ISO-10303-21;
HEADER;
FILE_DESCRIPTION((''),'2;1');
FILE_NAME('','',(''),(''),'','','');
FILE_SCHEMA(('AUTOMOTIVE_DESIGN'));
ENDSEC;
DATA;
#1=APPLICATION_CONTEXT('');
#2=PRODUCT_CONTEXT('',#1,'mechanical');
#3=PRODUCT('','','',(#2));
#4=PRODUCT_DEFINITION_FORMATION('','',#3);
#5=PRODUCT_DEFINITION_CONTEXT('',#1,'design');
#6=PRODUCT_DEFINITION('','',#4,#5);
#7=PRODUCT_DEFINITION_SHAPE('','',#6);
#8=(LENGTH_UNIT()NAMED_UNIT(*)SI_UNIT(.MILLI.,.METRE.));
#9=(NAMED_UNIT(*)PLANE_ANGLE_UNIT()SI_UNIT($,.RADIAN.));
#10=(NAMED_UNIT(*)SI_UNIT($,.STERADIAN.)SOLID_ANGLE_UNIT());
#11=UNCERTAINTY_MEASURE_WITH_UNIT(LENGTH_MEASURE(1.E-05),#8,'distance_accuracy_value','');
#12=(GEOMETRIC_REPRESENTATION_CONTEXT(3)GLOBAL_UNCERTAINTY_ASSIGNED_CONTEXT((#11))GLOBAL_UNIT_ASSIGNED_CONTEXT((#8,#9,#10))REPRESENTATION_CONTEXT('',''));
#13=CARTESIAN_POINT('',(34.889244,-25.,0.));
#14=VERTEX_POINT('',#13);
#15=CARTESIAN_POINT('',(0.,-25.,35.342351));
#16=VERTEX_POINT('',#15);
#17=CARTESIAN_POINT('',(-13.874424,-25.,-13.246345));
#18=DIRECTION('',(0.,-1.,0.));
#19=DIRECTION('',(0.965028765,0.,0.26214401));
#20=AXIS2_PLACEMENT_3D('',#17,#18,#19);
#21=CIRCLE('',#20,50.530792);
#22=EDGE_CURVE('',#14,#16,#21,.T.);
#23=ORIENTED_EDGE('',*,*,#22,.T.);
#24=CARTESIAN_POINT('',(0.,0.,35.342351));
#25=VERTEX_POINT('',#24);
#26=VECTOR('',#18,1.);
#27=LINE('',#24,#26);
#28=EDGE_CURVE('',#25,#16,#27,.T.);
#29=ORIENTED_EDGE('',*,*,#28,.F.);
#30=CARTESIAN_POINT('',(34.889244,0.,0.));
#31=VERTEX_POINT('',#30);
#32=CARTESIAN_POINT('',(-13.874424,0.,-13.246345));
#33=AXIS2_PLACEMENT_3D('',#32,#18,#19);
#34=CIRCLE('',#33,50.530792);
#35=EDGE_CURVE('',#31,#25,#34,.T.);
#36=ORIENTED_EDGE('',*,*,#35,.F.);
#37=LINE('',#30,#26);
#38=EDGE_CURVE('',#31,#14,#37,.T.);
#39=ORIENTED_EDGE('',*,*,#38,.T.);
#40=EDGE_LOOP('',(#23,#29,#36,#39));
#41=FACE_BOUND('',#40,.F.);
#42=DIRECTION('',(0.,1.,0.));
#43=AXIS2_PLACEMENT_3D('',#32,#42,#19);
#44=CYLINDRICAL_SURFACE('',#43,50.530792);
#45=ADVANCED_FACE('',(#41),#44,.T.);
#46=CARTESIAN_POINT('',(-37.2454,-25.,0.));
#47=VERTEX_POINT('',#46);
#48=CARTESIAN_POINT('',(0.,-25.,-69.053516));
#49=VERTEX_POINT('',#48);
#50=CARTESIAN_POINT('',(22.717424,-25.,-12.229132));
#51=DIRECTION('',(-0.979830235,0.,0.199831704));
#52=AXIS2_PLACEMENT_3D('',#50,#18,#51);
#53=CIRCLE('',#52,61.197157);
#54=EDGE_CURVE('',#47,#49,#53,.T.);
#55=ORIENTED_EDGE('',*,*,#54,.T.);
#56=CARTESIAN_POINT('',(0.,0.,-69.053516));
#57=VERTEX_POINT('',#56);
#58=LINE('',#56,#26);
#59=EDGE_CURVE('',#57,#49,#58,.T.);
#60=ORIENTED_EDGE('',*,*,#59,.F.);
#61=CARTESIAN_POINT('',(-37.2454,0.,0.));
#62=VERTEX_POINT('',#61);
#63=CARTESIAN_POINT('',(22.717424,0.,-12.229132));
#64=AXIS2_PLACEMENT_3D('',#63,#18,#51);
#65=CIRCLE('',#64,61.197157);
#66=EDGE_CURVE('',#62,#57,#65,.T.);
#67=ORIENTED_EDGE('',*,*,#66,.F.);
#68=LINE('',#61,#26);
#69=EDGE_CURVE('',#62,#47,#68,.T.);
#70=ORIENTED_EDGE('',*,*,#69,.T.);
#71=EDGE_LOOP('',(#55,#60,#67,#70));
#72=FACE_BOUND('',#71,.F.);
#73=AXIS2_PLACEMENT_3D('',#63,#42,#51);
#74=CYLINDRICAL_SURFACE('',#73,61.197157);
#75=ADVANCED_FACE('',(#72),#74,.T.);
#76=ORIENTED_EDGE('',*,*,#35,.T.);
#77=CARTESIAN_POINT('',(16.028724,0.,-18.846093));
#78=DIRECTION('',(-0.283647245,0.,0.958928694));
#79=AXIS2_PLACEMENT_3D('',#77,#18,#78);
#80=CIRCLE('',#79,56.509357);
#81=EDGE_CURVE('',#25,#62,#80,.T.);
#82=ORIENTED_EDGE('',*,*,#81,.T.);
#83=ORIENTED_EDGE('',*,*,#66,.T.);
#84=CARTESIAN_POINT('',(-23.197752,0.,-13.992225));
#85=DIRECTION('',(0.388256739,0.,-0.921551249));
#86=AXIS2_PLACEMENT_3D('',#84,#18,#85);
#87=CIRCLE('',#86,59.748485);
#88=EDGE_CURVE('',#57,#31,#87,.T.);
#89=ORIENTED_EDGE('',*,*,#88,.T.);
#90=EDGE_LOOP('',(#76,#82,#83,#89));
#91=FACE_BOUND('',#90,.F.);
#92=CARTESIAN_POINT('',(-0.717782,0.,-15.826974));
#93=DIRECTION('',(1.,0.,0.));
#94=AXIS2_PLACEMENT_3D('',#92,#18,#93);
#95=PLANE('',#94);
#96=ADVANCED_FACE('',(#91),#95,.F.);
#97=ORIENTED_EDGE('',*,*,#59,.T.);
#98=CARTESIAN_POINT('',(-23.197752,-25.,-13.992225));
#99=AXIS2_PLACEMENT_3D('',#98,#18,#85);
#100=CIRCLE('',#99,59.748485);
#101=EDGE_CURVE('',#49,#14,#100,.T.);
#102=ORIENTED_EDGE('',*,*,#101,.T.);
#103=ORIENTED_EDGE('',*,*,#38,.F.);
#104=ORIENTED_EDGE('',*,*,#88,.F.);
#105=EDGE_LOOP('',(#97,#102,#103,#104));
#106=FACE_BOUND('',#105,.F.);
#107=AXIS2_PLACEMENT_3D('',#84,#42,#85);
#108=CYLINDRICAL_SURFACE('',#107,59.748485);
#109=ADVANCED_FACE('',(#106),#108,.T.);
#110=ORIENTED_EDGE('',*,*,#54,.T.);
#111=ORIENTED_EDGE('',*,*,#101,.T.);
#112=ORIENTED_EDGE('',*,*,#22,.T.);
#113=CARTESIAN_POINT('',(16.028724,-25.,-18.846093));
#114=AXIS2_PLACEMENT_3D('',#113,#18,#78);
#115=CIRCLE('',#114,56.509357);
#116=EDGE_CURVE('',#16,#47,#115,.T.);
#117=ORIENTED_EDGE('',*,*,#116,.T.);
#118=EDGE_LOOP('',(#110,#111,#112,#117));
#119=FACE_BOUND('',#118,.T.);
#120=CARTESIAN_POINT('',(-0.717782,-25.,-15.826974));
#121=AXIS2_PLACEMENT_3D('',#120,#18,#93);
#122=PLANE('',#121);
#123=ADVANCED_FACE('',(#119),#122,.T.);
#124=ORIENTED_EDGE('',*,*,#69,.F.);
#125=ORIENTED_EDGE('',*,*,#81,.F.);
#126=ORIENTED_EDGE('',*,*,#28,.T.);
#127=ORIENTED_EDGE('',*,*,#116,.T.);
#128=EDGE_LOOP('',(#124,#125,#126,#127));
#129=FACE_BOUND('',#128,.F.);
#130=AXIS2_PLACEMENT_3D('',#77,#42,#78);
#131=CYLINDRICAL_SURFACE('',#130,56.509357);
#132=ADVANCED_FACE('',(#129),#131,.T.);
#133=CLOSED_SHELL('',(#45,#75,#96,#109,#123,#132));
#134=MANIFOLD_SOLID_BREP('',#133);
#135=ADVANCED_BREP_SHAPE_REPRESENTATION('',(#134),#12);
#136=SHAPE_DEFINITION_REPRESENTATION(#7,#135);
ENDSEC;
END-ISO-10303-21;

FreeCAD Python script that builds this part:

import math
import FreeCAD as App
import Part
import Sketcher
from FreeCAD import Vector

doc = App.newDocument("Part")
params = doc.addObject("Spreadsheet::Sheet", "Params")
for row, (alias, value) in enumerate([
    ("pad1_length", "25 mm"),
], start=1):
    params.set(f"A{row}", alias)
    params.set(f"B{row}", "=" + value)
    params.setAlias(f"B{row}", alias)

body = doc.addObject("PartDesign::Body", "Body")

# Sketch on XZ plane
sketch1 = body.newObject("Sketcher::SketchObject", "Sketch")
sketch1.AttachmentSupport = (doc.getObject("XZ_Plane"), [""])
sketch1.MapMode = "FlatFace"
sketch1.addGeometry(Part.ArcOfCircle(Part.Circle(Vector(-14, -13, 0), Vector(0, 0, 1), 51), math.radians(15), math.radians(74)), False)
sketch1.addGeometry(Part.ArcOfCircle(Part.Circle(Vector(16, -19, 0), Vector(0, 0, 1), 57), math.radians(106), math.radians(161)), False)
sketch1.addGeometry(Part.ArcOfCircle(Part.Circle(Vector(23, -12, 0), Vector(0, 0, 1), 61), math.radians(168), math.radians(248)), False)
sketch1.addGeometry(Part.ArcOfCircle(Part.Circle(Vector(-23, -14, 0), Vector(0, 0, 1), 60), math.radians(-67), math.radians(14)), False)
sketch1.addConstraint(Sketcher.Constraint("Coincident", 0, 2, 1, 1))
sketch1.addConstraint(Sketcher.Constraint("Coincident", 1, 2, 2, 1))
sketch1.addConstraint(Sketcher.Constraint("Coincident", 2, 2, 3, 1))
sketch1.addConstraint(Sketcher.Constraint("Coincident", 3, 2, 0, 1))
sketch1.addConstraint(Sketcher.Constraint("PointOnObject", 0, 2, -2))
sketch1.addConstraint(Sketcher.Constraint("PointOnObject", 1, 2, -1))
sketch1.addConstraint(Sketcher.Constraint("PointOnObject", 2, 2, -2))
sketch1.addConstraint(Sketcher.Constraint("PointOnObject", 3, 2, -1))
sketch1.addConstraint(Sketcher.Constraint("Radius", 0, 50.530792))
sketch1.addConstraint(Sketcher.Constraint("Radius", 1, 56.509357))
sketch1.addConstraint(Sketcher.Constraint("Radius", 2, 61.197157))
sketch1.addConstraint(Sketcher.Constraint("Radius", 3, 59.748485))
sketch1.addConstraint(Sketcher.Constraint("DistanceX", 1, 2, -1, 1, 37.2454))
sketch1.addConstraint(Sketcher.Constraint("DistanceX", 1, 3, 2, 3, 6.688701))
sketch1.addConstraint(Sketcher.Constraint("DistanceX", 3, 3, -1, 1, 23.197752))
sketch1.addConstraint(Sketcher.Constraint("DistanceY", -1, 1, 0, 2, 35.342351))
pad1 = body.newObject("PartDesign::Pad", "Pad")
pad1.Profile = sketch1
pad1.setExpression("Length", "Params.pad1_length")

doc.recompute()
